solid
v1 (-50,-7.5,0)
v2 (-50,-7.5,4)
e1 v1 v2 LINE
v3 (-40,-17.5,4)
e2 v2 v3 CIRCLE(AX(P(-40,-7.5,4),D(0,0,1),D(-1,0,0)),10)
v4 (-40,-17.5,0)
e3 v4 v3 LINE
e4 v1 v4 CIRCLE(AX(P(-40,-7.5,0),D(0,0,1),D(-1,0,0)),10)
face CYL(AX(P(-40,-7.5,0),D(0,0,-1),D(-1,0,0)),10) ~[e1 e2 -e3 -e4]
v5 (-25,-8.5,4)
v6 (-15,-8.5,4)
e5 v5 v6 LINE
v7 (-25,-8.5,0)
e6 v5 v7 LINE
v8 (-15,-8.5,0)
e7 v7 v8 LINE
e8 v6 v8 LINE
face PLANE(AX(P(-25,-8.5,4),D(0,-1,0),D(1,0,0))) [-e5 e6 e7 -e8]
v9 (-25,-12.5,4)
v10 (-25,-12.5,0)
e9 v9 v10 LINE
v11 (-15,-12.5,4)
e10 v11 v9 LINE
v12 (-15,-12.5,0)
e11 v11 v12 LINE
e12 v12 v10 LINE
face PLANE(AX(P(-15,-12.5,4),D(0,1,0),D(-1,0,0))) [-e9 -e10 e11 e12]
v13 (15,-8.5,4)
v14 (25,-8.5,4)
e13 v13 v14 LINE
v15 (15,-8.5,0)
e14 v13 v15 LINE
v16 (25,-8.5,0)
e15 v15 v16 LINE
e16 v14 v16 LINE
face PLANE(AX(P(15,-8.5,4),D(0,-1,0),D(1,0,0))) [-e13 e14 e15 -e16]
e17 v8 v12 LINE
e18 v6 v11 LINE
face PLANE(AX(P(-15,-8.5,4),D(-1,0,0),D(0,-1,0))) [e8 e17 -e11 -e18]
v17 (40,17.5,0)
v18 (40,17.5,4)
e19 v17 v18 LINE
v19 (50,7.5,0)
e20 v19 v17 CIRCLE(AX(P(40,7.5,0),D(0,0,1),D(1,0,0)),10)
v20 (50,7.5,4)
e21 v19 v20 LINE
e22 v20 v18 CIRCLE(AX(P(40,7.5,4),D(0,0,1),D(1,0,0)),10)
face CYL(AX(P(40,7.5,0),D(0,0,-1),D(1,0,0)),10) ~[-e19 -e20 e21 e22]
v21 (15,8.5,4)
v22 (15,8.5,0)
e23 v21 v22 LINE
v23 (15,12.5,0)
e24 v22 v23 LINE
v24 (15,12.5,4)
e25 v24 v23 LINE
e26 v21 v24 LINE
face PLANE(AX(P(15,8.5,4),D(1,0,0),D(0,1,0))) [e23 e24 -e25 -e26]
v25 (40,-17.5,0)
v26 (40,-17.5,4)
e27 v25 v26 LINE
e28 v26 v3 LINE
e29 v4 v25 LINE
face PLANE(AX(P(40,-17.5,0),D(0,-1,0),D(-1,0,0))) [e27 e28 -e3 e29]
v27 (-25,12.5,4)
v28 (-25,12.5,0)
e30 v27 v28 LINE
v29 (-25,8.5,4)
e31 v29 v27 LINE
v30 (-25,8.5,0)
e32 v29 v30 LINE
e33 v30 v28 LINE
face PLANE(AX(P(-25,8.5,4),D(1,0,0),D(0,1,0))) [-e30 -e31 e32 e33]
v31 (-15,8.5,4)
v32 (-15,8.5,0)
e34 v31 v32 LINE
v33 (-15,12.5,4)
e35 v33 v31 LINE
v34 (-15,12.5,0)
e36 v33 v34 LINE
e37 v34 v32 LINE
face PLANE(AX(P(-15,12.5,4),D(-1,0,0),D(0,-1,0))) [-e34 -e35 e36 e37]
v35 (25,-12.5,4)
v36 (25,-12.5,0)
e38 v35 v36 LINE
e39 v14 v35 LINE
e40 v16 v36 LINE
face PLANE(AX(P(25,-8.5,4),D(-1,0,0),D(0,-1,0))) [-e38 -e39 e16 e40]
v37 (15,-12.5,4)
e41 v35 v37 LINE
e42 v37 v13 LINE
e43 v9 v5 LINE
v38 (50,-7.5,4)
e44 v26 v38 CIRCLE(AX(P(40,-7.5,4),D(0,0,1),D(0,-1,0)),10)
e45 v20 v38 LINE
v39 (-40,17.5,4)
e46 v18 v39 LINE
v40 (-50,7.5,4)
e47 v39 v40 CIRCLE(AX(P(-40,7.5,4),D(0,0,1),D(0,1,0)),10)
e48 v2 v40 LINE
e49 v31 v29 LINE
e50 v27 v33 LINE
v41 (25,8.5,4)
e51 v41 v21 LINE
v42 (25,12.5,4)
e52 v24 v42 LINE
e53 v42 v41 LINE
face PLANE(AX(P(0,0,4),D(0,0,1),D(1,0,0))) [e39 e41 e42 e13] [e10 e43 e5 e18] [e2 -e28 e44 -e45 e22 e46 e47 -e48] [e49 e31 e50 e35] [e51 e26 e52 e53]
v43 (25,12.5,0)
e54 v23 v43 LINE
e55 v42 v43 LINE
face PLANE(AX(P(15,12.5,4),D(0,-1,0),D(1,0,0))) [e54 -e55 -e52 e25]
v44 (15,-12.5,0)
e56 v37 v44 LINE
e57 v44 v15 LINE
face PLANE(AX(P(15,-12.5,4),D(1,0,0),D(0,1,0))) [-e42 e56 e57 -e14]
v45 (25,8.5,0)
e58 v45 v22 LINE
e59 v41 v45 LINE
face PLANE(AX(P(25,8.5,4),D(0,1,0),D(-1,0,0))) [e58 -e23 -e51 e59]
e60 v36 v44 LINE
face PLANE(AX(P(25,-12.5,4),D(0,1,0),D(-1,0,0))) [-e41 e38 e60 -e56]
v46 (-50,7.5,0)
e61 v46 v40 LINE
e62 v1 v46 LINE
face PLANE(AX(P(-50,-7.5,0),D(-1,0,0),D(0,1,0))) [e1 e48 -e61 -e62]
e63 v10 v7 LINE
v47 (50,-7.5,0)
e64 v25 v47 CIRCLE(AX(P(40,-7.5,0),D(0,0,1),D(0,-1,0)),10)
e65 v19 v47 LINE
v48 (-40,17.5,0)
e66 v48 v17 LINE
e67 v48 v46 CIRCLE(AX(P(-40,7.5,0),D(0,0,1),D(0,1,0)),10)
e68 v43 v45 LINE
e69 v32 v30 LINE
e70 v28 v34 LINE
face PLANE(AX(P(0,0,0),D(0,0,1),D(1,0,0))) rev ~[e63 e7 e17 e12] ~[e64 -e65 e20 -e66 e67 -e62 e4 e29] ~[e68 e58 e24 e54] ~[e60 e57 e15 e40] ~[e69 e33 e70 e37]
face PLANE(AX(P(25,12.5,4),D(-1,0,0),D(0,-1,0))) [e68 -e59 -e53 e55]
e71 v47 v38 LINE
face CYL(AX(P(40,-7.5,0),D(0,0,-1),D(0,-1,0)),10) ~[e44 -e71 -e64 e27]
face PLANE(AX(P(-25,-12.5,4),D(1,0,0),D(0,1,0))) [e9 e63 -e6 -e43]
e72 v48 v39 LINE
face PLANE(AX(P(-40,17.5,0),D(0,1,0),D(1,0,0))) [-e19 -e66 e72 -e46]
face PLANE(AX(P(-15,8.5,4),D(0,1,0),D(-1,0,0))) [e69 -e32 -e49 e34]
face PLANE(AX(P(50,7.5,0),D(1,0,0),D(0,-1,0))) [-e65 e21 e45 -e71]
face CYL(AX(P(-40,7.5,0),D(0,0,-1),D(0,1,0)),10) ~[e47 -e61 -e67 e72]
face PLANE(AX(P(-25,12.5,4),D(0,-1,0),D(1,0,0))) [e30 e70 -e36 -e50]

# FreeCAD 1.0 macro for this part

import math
import FreeCAD as App
import Part
import Sketcher

V = App.Vector


def add_polygon(sketch, points):
    """Adds a closed chain of lines whose ends are joined by coincident constraints."""
    first, n = sketch.GeometryCount, len(points)
    for a, b in zip(points, points[1:] + points[:1]):
        sketch.addGeometry(Part.LineSegment(App.Vector(*a, 0), App.Vector(*b, 0)), False)
    for i in range(n):
        sketch.addConstraint(Sketcher.Constraint("Coincident", first + i, 2, first + (i + 1) % n, 1))

doc = App.newDocument("Part")
params = doc.addObject("Spreadsheet::Sheet", "Params")
for row, (alias, value) in enumerate([
    ("sketch1_radius", "10 mm"),
    ("sketch1_width", "80 mm"),
    ("sketch1_height", "15 mm"),
    ("pad1_length", "4 mm"),
    ("sketch2_width", "10 mm"),
    ("sketch2_height", "4 mm"),
    ("pocket1_length", "4 mm"),
], start=1):
    params.set(f"A{row}", alias)
    params.set(f"B{row}", "=" + value)
    params.setAlias(f"B{row}", alias)

body = doc.addObject("PartDesign::Body", "Body")

sketch1 = body.newObject("Sketcher::SketchObject", "Sketch")
sketch1.AttachmentSupport = (doc.getObject("XY_Plane"), [""])
sketch1.MapMode = "FlatFace"
sketch1.addGeometry([
    Part.ArcOfCircle(Part.Circle(V(40, -8, 0), V(0, 0, 1), 10), math.radians(-90), math.radians(0)),
    Part.LineSegment(V(50, -8, 0), V(50, 8, 0)),
    Part.ArcOfCircle(Part.Circle(V(40, 8, 0), V(0, 0, 1), 10), math.radians(0), math.radians(90)),
    Part.LineSegment(V(40, 18, 0), V(-40, 18, 0)),
    Part.ArcOfCircle(Part.Circle(V(-40, 8, 0), V(0, 0, 1), 10), math.radians(90), math.radians(180)),
    Part.LineSegment(V(-50, 8, 0), V(-50, -8, 0)),
    Part.ArcOfCircle(Part.Circle(V(-40, -8, 0), V(0, 0, 1), 10), math.radians(180), math.radians(270)),
    Part.LineSegment(V(-40, -18, 0), V(40, -18, 0)),
], False)
sketch1.addConstraint([
    Sketcher.Constraint("Tangent", 0, 2, 1, 1),
    Sketcher.Constraint("Tangent", 1, 2, 2, 1),
    Sketcher.Constraint("Tangent", 2, 2, 3, 1),
    Sketcher.Constraint("Tangent", 3, 2, 4, 1),
    Sketcher.Constraint("Tangent", 4, 2, 5, 1),
    Sketcher.Constraint("Tangent", 5, 2, 6, 1),
    Sketcher.Constraint("Tangent", 6, 2, 7, 1),
    Sketcher.Constraint("Tangent", 7, 2, 0, 1),
    Sketcher.Constraint("Vertical", 1),
    Sketcher.Constraint("Horizontal", 3),
    Sketcher.Constraint("Vertical", 5),
    Sketcher.Constraint("Horizontal", 7),
    Sketcher.Constraint("Equal", 0, 2),
    Sketcher.Constraint("Equal", 2, 4),
    Sketcher.Constraint("Equal", 4, 6),
    Sketcher.Constraint("Symmetric", 0, 3, 4, 3, -1, 1),
    Sketcher.Constraint("Radius", 0, 10.0),
    Sketcher.Constraint("DistanceX", 3, 2, 3, 1, 80.0),
    Sketcher.Constraint("DistanceY", 1, 1, 1, 2, 15.0),
])
sketch1.setExpression("Constraints[16]", "Params.sketch1_radius")
sketch1.setExpression("Constraints[17]", "Params.sketch1_width")
sketch1.setExpression("Constraints[18]", "Params.sketch1_height")
pad1 = body.newObject("PartDesign::Pad", "Pad")
pad1.Profile = sketch1
pad1.setExpression("Length", "Params.pad1_length")

sketch2 = body.newObject("Sketcher::SketchObject", "Sketch001")
sketch2.AttachmentSupport = (doc.getObject("XY_Plane"), [""])
sketch2.MapMode = "FlatFace"
sketch2.AttachmentOffset = App.Placement(V(0, 0, 4), App.Rotation())
add_polygon(sketch2, [(25, 12.5), (15, 12.5), (15, 8.5), (25, 8.5)])
add_polygon(sketch2, [(25, -8.5), (15, -8.5), (15, -12.5), (25, -12.5)])
add_polygon(sketch2, [(-15, -12.5), (-15, -8.5), (-25, -8.5), (-25, -12.5)])
add_polygon(sketch2, [(-25, 8.5), (-15, 8.5), (-15, 12.5), (-25, 12.5)])
sketch2.addConstraint([
    Sketcher.Constraint("Horizontal", 0),
    Sketcher.Constraint("Vertical", 1),
    Sketcher.Constraint("Horizontal", 2),
    Sketcher.Constraint("Vertical", 3),
    Sketcher.Constraint("Horizontal", 4),
    Sketcher.Constraint("Vertical", 5),
    Sketcher.Constraint("Horizontal", 6),
    Sketcher.Constraint("Vertical", 7),
    Sketcher.Constraint("Vertical", 8),
    Sketcher.Constraint("Horizontal", 9),
    Sketcher.Constraint("Vertical", 10),
    Sketcher.Constraint("Horizontal", 11),
    Sketcher.Constraint("Horizontal", 12),
    Sketcher.Constraint("Vertical", 13),
    Sketcher.Constraint("Horizontal", 14),
    Sketcher.Constraint("Vertical", 15),
    Sketcher.Constraint("Symmetric", 1, 2, 8, 2, -1, 1),
    Sketcher.Constraint("Symmetric", 3, 2, 10, 2, -1, 1),
    Sketcher.Constraint("Symmetric", 4, 2, 12, 2, -1, 1),
    Sketcher.Constraint("Symmetric", 6, 2, 14, 2, -1, 1),
    Sketcher.Constraint("Symmetric", 4, 2, 8, 2, -2),
    Sketcher.Constraint("Symmetric", 6, 2, 10, 2, -2),
    Sketcher.Constraint("DistanceX", 0, 2, 0, 1, 10.0),
    Sketcher.Constraint("DistanceY", 1, 2, 1, 1, 4.0),
    Sketcher.Constraint("DistanceX", -1, 1, 0, 2, 15.0),
    Sketcher.Constraint("DistanceY", 4, 2, 1, 2, 17.0),
])
sketch2.setExpression("Constraints[38]", "Params.sketch2_width")
sketch2.setExpression("Constraints[39]", "Params.sketch2_height")
pocket1 = body.newObject("PartDesign::Pocket", "Pocket")
pocket1.Profile = sketch2
pocket1.setExpression("Length", "Params.pocket1_length")

doc.recompute()
